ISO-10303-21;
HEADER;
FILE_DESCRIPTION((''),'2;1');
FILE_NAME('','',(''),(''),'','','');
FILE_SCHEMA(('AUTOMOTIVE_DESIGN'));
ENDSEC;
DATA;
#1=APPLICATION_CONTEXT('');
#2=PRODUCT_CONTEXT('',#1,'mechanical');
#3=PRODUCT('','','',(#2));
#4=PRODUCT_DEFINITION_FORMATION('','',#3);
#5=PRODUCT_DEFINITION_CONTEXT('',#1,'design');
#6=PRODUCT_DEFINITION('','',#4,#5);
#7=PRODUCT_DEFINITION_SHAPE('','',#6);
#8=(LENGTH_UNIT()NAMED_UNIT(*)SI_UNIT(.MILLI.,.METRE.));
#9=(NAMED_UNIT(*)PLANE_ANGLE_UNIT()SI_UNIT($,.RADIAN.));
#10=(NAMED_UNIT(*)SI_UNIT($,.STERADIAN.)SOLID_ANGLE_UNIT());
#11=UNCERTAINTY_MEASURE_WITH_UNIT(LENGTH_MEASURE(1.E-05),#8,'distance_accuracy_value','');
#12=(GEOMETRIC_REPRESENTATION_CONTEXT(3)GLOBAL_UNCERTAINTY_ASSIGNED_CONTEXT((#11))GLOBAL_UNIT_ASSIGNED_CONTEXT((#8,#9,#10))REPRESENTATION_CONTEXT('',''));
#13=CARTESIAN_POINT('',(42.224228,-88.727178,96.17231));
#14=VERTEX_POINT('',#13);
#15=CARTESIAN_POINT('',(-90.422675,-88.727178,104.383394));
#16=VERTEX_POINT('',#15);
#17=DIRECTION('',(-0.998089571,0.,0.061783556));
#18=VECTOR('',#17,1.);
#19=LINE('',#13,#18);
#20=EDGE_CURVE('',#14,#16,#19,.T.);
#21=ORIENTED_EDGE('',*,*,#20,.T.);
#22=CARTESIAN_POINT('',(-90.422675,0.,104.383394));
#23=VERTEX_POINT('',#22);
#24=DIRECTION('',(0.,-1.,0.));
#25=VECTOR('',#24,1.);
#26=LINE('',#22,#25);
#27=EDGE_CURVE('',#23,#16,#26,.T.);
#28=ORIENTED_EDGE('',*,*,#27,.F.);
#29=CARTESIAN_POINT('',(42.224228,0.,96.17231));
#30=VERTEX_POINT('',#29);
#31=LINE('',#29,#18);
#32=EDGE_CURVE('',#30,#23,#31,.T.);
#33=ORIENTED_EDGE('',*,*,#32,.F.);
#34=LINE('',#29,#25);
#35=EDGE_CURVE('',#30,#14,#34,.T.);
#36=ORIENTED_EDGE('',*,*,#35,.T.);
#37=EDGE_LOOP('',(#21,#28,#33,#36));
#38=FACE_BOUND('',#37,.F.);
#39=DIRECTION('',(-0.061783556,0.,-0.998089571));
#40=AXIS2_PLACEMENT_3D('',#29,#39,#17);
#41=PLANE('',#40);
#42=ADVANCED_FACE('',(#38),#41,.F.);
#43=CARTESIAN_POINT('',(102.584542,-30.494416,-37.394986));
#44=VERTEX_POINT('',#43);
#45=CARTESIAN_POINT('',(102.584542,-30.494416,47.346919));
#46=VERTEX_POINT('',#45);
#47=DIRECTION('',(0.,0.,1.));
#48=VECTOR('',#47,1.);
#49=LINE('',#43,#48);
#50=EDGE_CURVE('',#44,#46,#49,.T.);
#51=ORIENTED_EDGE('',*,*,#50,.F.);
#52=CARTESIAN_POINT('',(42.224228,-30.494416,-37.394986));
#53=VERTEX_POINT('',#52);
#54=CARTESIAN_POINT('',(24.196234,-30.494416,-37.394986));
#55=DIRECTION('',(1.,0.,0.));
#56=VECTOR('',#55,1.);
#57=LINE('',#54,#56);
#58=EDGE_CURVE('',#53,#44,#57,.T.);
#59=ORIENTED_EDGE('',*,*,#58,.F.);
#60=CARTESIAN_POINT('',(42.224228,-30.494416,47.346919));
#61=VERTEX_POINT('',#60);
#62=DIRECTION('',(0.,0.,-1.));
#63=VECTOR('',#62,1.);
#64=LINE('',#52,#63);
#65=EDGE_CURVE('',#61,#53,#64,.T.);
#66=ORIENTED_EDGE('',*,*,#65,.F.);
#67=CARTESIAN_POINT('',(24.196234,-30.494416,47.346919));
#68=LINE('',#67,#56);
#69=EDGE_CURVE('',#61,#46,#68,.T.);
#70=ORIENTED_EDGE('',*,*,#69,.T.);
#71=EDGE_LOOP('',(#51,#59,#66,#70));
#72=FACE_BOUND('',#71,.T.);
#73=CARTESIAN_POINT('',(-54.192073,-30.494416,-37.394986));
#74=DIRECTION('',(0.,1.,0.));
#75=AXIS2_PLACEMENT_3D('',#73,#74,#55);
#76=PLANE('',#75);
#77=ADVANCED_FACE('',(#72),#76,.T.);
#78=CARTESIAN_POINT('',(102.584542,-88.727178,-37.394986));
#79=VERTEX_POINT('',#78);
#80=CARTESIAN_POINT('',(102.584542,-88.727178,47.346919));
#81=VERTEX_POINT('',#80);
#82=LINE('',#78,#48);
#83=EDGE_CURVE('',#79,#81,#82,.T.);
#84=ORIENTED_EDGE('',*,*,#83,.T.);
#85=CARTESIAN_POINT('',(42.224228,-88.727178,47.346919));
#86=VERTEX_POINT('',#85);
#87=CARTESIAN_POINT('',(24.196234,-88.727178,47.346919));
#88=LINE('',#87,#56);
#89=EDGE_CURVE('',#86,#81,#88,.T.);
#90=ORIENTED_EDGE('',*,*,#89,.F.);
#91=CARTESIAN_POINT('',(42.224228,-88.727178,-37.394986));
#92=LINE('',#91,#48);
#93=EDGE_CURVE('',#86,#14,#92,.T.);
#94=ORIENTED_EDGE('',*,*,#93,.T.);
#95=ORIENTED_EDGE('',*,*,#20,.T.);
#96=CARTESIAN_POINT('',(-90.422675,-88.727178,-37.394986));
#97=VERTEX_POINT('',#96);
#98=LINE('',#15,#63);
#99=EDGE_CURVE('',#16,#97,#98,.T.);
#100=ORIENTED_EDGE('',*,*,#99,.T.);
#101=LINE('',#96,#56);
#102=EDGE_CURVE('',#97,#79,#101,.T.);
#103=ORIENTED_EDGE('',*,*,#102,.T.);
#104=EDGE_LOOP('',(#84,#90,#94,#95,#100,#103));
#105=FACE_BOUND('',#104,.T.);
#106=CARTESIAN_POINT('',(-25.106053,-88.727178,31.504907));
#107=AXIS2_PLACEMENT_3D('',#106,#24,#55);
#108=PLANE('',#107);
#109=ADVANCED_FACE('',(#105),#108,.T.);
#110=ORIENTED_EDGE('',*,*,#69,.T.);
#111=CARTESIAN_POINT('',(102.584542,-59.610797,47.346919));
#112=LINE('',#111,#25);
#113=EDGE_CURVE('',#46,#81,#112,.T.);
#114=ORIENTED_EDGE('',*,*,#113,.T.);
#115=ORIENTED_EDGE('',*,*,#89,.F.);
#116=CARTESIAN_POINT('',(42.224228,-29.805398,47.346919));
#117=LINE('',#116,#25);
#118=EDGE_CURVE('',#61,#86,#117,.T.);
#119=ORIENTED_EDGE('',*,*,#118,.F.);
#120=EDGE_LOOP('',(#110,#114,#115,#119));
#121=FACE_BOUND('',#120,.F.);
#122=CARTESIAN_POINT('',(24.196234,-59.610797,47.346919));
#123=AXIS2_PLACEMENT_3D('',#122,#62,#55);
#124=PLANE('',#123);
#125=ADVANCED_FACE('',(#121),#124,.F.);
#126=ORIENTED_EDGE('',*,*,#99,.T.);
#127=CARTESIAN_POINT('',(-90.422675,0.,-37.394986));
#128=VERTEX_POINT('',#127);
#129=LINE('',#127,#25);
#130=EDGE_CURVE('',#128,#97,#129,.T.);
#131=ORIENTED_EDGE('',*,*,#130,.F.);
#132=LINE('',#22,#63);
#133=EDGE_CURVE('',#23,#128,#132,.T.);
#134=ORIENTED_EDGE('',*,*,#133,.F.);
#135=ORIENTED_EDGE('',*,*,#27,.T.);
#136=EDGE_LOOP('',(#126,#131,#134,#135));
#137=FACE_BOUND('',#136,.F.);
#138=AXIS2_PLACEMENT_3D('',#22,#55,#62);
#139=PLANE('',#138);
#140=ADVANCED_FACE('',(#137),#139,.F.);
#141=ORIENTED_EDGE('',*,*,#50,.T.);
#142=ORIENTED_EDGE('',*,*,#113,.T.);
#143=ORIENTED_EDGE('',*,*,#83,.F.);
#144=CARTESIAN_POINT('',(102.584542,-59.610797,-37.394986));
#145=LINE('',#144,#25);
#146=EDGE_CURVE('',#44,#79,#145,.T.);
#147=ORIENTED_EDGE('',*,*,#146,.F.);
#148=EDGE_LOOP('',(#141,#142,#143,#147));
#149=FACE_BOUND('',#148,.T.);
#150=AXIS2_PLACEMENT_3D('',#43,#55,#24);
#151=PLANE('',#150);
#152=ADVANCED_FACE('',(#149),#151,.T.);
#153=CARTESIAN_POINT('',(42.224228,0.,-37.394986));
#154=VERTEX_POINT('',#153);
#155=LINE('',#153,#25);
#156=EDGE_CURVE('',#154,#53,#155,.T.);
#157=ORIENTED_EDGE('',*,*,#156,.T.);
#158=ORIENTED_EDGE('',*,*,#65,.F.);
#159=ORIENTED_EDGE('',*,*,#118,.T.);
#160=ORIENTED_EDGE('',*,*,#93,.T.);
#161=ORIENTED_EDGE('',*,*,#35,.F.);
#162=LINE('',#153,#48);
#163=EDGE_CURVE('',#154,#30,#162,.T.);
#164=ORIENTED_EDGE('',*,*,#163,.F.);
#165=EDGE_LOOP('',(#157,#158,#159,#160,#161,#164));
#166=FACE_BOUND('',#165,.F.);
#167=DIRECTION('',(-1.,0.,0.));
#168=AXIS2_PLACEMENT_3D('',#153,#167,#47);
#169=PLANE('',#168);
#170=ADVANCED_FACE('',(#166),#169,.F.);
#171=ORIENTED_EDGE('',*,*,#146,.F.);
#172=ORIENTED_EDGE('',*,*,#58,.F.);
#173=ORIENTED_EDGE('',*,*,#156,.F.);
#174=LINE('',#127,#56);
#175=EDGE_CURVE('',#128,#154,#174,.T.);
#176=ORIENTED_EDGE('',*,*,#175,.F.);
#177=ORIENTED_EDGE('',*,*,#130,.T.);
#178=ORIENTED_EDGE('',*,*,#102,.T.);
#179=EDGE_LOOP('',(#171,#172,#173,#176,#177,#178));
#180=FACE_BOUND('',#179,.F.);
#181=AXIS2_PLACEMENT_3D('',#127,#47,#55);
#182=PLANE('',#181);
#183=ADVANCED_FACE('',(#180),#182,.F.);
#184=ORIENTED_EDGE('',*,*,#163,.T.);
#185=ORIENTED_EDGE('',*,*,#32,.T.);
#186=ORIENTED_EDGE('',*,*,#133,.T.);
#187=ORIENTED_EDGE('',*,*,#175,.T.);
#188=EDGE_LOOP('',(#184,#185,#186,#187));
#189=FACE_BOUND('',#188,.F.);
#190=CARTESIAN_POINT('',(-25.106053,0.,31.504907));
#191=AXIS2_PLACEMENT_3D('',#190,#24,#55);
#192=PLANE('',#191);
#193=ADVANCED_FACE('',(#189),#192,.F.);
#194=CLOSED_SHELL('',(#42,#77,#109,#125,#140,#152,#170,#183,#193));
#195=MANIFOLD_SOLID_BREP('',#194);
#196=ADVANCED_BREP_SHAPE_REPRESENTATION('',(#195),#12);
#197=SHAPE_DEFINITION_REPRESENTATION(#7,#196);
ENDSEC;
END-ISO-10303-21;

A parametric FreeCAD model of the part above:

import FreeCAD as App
import Part
import Sketcher
from FreeCAD import Vector

doc = App.newDocument("Part")
body = doc.addObject("PartDesign::Body", "Body")

sketch1 = doc.addObject("Sketcher::SketchObject", "Sketch")
body.addObject(sketch1)
sketch1.AttachmentSupport = (doc.XZ_Plane, [""])
sketch1.MapMode = "FlatFace"
sketch1.addGeometry([
    Part.LineSegment(Vector(42, -37, 0), Vector(42, 96, 0)),
    Part.LineSegment(Vector(42, 96, 0), Vector(-90, 104, 0)),
    Part.LineSegment(Vector(-90, 104, 0), Vector(-90, -37, 0)),
    Part.LineSegment(Vector(-90, -37, 0), Vector(42, -37, 0)),
], False)
sketch1.addConstraint([
    Sketcher.Constraint("Coincident", 0, 2, 1, 1),
    Sketcher.Constraint("Coincident", 1, 2, 2, 1),
    Sketcher.Constraint("Coincident", 2, 2, 3, 1),
    Sketcher.Constraint("Coincident", 3, 2, 0, 1),
    Sketcher.Constraint("Vertical", 0),
    Sketcher.Constraint("Vertical", 2),
    Sketcher.Constraint("Horizontal", 3),
    Sketcher.Constraint("Distance", 1, 132.900801),
    Sketcher.Constraint("DistanceY", 2, 2, 2, 1, 141.77838),
    Sketcher.Constraint("DistanceX", 3, 1, 3, 2, 132.646903),
    Sketcher.Constraint("DistanceY", -1, 1, 0, 2, 96.17231),
    Sketcher.Constraint("DistanceX", -1, 1, 0, 2, 42.224228),
])
pad1 = doc.addObject("PartDesign::Pad", "Pad")
body.addObject(pad1)
pad1.Profile = sketch1
pad1.Length = 88.727178

sketch2 = doc.addObject("Sketcher::SketchObject", "Sketch001")
body.addObject(sketch2)
sketch2.AttachmentSupport = (doc.XY_Plane, [""])
sketch2.MapMode = "FlatFace"
sketch2.AttachmentOffset = App.Placement(Vector(0, 0, -37.394986), App.Rotation())
sketch2.addGeometry([
    Part.LineSegment(Vector(-54, -89, 0), Vector(-54, -30, 0)),
    Part.LineSegment(Vector(-54, -30, 0), Vector(103, -30, 0)),
    Part.LineSegment(Vector(103, -30, 0), Vector(103, -89, 0)),
    Part.LineSegment(Vector(103, -89, 0), Vector(-54, -89, 0)),
], False)
sketch2.addConstraint([
    Sketcher.Constraint("Coincident", 0, 2, 1, 1),
    Sketcher.Constraint("Coincident", 1, 2, 2, 1),
    Sketcher.Constraint("Coincident", 2, 2, 3, 1),
    Sketcher.Constraint("Coincident", 3, 2, 0, 1),
    Sketcher.Constraint("Vertical", 0),
    Sketcher.Constraint("Horizontal", 1),
    Sketcher.Constraint("Vertical", 2),
    Sketcher.Constraint("Horizontal", 3),
    Sketcher.Constraint("DistanceY", 0, 1, 0, 2, 58.232762),
    Sketcher.Constraint("DistanceX", 1, 1, 1, 2, 156.776615),
    Sketcher.Constraint("DistanceX", -1, 1, 1, 2, 102.584542),
    Sketcher.Constraint("DistanceY", 0, 2, -1, 1, 30.494416),
])
pad2 = doc.addObject("PartDesign::Pad", "Pad001")
body.addObject(pad2)
pad2.Profile = sketch2
pad2.Length = 84.741905

doc.recompute()
